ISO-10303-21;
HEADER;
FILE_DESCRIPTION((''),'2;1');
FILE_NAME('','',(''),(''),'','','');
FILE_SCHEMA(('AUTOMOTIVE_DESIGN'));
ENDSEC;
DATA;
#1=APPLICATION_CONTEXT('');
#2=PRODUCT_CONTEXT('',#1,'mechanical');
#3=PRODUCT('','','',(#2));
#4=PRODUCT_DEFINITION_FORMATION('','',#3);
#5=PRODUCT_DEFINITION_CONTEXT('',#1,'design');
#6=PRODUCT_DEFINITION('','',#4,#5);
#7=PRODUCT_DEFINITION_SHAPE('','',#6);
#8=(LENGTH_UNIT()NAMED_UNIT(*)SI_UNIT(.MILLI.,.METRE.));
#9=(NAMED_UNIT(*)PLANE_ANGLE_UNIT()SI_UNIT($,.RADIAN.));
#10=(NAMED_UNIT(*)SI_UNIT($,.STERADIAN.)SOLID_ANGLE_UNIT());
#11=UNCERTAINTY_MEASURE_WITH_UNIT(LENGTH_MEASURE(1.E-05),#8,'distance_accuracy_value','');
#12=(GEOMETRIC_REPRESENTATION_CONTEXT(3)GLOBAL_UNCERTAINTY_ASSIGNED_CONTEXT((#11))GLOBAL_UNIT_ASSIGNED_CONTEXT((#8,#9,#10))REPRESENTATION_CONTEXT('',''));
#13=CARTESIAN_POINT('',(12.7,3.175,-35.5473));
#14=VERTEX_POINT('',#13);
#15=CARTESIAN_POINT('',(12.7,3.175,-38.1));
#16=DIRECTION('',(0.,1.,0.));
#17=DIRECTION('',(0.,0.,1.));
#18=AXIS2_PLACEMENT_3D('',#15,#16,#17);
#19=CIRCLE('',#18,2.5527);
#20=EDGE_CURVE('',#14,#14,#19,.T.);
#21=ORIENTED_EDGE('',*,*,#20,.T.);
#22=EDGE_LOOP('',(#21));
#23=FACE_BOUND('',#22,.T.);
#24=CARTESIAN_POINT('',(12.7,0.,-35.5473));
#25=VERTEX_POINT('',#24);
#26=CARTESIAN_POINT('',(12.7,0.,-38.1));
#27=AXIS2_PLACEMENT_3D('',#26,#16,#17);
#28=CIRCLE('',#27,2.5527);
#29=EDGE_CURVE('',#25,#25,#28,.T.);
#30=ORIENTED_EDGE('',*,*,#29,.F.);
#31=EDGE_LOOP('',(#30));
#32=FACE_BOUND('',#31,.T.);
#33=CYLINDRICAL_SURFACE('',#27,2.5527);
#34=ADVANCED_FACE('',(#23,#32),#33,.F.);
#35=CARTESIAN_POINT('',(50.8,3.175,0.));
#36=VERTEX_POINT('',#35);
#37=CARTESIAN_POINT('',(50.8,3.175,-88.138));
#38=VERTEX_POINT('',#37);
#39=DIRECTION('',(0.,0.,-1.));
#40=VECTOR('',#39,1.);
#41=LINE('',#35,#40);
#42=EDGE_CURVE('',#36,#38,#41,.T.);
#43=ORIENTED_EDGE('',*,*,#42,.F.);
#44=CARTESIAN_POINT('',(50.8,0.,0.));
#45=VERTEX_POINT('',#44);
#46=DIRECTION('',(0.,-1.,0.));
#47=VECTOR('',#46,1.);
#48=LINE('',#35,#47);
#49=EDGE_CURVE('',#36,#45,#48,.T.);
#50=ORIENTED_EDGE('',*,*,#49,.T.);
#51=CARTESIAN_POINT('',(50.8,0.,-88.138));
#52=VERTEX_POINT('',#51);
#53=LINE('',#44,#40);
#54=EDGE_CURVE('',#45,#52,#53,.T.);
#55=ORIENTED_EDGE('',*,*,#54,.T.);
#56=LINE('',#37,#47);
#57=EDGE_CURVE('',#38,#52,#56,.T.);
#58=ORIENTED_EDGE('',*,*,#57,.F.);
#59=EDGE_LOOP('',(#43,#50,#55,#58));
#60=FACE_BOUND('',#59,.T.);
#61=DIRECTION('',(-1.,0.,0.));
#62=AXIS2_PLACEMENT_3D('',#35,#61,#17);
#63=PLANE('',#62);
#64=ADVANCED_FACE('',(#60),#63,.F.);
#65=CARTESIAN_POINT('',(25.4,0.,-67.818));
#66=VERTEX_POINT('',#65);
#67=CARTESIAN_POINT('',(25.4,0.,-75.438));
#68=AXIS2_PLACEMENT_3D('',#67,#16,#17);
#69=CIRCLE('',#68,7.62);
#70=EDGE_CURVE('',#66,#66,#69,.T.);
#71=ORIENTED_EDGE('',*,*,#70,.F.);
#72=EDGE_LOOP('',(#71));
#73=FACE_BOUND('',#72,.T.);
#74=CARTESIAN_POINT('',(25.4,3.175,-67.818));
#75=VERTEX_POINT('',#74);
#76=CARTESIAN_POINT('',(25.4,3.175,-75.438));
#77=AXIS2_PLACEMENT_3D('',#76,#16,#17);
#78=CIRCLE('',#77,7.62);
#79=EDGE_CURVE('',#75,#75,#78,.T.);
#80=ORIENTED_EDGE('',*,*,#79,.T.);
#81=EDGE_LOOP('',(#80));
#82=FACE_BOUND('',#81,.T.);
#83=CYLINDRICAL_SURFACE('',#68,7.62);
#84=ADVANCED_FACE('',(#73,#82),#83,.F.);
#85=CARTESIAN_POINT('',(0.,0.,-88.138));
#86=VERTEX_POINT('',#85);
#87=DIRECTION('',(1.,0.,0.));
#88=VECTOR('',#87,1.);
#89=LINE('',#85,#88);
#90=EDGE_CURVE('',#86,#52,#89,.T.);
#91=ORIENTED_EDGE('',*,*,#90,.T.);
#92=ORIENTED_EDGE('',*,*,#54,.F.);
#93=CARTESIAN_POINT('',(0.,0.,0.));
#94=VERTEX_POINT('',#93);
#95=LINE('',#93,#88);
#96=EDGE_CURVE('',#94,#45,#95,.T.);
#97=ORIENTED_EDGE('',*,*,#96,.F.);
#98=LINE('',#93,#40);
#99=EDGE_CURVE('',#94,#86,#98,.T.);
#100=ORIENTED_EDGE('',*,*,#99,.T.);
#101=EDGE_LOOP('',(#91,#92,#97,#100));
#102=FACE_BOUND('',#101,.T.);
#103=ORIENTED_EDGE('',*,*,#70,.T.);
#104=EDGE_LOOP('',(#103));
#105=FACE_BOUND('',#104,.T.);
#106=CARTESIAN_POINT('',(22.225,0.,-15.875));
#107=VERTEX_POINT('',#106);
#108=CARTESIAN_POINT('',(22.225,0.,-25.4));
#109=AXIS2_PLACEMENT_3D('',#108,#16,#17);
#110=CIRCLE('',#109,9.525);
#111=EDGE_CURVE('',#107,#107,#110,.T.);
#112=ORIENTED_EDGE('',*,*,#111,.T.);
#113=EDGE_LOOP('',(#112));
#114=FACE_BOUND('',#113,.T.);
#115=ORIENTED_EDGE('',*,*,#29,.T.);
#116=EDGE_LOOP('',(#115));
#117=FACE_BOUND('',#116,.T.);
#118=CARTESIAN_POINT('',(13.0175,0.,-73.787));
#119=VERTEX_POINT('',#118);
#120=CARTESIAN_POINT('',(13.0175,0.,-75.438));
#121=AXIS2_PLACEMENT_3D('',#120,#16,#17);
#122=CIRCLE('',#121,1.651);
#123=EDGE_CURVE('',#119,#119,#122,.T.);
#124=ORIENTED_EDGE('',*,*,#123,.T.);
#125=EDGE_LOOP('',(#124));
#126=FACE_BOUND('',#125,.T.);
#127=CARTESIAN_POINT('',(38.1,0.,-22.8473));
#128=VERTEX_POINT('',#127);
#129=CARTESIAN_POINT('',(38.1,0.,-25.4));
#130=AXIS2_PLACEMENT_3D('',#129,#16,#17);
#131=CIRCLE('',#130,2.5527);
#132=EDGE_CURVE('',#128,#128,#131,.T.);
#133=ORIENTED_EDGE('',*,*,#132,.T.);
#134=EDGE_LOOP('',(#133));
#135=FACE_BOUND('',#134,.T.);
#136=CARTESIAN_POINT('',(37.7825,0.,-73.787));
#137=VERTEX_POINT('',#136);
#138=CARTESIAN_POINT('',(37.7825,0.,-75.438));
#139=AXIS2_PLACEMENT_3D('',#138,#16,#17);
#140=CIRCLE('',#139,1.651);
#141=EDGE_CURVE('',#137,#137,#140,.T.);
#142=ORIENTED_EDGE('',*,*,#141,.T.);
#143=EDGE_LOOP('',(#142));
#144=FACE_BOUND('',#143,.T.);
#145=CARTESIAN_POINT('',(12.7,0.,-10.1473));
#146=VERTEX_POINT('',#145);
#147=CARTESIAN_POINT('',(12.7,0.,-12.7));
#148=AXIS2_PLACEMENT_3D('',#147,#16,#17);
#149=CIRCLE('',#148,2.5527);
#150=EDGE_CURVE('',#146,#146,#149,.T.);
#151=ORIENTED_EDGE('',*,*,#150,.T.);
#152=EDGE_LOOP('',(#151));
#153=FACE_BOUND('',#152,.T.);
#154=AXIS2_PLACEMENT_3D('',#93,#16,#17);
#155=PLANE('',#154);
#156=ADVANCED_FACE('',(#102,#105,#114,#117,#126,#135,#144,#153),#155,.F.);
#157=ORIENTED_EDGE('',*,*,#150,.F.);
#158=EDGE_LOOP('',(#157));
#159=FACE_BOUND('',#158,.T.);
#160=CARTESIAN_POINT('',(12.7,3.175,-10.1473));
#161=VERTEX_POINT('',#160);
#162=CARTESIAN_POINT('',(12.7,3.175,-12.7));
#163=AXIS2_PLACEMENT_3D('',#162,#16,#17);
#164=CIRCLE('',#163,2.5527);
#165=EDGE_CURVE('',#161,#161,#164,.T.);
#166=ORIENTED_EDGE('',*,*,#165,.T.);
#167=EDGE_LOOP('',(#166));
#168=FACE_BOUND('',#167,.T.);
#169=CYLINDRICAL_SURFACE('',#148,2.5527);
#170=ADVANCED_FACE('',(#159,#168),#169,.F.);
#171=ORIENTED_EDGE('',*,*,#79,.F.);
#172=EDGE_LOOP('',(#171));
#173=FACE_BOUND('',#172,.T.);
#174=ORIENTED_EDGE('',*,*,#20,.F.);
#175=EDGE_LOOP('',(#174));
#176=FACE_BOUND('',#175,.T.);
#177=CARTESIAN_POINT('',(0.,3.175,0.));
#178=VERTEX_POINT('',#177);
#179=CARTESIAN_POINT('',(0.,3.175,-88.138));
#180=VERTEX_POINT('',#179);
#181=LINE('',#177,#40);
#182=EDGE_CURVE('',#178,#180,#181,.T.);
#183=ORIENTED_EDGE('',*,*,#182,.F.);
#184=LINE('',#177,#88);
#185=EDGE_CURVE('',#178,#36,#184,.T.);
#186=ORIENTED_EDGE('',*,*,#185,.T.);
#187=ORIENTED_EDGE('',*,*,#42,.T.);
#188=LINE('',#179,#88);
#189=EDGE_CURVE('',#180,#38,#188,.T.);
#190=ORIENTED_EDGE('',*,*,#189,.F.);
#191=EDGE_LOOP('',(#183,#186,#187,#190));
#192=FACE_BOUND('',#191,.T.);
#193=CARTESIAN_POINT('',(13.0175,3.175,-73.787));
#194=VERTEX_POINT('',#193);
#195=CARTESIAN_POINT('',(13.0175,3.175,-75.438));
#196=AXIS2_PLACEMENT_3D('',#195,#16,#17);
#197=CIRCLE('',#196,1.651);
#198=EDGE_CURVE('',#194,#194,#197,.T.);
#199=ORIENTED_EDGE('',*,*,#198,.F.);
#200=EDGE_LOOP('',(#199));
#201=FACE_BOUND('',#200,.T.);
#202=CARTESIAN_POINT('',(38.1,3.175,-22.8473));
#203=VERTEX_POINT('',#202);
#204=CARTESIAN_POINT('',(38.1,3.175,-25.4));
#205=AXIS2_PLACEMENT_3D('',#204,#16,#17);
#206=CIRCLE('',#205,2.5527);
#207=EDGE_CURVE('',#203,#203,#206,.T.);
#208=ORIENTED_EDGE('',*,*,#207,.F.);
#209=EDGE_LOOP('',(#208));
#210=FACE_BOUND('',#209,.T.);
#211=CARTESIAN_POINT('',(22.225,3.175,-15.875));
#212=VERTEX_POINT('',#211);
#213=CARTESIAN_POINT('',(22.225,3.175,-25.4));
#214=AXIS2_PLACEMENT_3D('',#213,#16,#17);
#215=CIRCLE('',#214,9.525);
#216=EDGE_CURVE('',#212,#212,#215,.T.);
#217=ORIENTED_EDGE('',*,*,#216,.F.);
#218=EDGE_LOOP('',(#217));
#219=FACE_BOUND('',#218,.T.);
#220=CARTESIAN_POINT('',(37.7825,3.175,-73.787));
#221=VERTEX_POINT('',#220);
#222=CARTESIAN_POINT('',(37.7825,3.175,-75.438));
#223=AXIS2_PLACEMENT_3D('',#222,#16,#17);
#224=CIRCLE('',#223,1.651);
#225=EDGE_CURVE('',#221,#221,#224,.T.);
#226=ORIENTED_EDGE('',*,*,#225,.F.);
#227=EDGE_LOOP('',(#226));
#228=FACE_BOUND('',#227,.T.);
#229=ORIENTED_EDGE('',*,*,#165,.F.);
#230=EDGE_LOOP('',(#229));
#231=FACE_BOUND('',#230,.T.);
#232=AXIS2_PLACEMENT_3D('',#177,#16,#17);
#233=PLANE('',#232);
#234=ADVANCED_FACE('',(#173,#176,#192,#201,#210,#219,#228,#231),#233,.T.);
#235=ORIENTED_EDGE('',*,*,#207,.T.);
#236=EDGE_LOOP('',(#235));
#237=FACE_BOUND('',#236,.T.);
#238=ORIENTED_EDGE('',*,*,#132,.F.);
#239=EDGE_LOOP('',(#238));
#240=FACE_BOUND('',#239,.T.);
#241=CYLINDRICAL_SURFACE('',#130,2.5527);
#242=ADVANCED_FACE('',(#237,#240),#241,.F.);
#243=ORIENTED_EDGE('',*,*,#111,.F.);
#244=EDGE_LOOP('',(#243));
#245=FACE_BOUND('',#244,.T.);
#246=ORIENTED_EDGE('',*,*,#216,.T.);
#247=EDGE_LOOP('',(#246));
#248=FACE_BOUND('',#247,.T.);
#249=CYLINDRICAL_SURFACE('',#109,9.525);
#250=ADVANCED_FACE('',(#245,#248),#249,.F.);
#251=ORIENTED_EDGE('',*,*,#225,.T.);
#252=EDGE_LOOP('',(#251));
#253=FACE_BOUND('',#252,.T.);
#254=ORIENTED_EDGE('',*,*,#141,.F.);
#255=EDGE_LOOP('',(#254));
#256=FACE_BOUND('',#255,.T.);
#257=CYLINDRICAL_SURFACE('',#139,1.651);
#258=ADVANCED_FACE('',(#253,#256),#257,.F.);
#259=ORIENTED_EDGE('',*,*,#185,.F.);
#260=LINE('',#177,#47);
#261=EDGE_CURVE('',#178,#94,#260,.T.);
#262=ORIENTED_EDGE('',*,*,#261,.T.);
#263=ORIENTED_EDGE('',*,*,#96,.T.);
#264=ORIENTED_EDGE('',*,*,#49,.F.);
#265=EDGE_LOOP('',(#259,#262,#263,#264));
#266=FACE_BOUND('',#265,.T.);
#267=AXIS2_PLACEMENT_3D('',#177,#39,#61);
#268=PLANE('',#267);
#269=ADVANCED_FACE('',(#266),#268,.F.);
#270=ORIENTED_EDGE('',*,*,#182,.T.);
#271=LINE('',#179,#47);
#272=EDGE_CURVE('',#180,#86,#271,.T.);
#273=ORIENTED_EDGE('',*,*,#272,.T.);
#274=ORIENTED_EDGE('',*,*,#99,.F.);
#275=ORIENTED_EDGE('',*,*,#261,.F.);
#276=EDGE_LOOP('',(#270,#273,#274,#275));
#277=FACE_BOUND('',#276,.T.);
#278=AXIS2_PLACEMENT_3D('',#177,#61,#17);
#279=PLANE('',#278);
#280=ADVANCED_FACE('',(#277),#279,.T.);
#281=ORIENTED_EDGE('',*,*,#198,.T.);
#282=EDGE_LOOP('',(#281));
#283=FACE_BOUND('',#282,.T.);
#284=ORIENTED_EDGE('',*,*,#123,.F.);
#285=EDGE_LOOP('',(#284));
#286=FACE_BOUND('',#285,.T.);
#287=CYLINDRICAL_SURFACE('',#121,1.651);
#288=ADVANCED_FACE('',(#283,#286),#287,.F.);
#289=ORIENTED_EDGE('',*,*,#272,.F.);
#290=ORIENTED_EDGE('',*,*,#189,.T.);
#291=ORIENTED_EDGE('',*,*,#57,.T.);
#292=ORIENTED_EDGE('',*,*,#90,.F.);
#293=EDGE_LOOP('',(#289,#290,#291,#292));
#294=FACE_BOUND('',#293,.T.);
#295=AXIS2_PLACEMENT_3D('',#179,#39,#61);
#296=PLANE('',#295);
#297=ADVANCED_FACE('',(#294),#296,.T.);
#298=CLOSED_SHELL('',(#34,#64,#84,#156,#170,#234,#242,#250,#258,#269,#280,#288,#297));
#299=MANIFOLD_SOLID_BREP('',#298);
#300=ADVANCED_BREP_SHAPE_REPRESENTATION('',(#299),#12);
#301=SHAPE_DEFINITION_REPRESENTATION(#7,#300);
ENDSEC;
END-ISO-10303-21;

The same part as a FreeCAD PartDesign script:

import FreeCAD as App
import Part
import Sketcher
Q = App.Units.Quantity

doc = App.newDocument("Part")
body = doc.addObject("PartDesign::Body", "Body")

sketch1 = body.newObject("Sketcher::SketchObject", "Sketch")
sketch1.AttachmentSupport = (doc.getObject("XZ_Plane"), [""])
sketch1.MapMode = "FlatFace"
sketch1.addGeometry([
    Part.LineSegment(App.Vector(0, -88, 0), App.Vector(0, 0, 0)),
    Part.LineSegment(App.Vector(0, 0, 0), App.Vector(51, 0, 0)),
    Part.LineSegment(App.Vector(51, 0, 0), App.Vector(51, -88, 0)),
    Part.LineSegment(App.Vector(51, -88, 0), App.Vector(0, -88, 0)),
], False)
sketch1.addConstraint([
    Sketcher.Constraint("Coincident", 0, 2, 1, 1),
    Sketcher.Constraint("Coincident", 1, 2, 2, 1),
    Sketcher.Constraint("Coincident", 2, 2, 3, 1),
    Sketcher.Constraint("Coincident", 3, 2, 0, 1),
    Sketcher.Constraint("Vertical", 0),
    Sketcher.Constraint("Horizontal", 1),
    Sketcher.Constraint("Vertical", 2),
    Sketcher.Constraint("Horizontal", 3),
    Sketcher.Constraint("Coincident", 0, 2, -1, 1),
    Sketcher.Constraint("DistanceX", 1, 1, 1, 2, Q("2 in")),
    Sketcher.Constraint("DistanceY", 0, 1, 0, 2, Q("3.47 in")),
])
pad1 = body.newObject("PartDesign::Pad", "Pad")
pad1.Profile = sketch1
pad1.Length = Q("0.125 in")
pad1.Reversed = True

sketch2 = body.newObject("Sketcher::SketchObject", "Sketch001")
sketch2.AttachmentSupport = (doc.getObject("XZ_Plane"), [""])
sketch2.MapMode = "FlatFace"
sketch2.AttachmentOffset = App.Placement(App.Vector(0, 0, -0.125 * 25.4), App.Rotation())
sketch2.addGeometry([
    Part.Circle(App.Vector(12.7, -12.7, 0), App.Vector(0, 0, 1), 2.6),
    Part.Circle(App.Vector(12.7, -38.1, 0), App.Vector(0, 0, 1), 2.6),
    Part.Circle(App.Vector(38.1, -25.4, 0), App.Vector(0, 0, 1), 2.6),
    Part.Circle(App.Vector(22.2, -25.4, 0), App.Vector(0, 0, 1), 9.5),
], False)
sketch2.addConstraint([
    Sketcher.Constraint("Equal", 0, 1),
    Sketcher.Constraint("Equal", 1, 2),
    Sketcher.Constraint("Horizontal", 2, 3, 3, 3),
    Sketcher.Constraint("Vertical", 0, 3, 1, 3),
    Sketcher.Constraint("Diameter", 3, Q("0.75 in")),
    Sketcher.Constraint("Diameter", 0, Q("0.201 in")),
    Sketcher.Constraint("DistanceY", 2, 3, -1, 1, Q("1 in")),
    Sketcher.Constraint("DistanceY", 1, 3, 0, 3, Q("1 in")),
    Sketcher.Constraint("DistanceX", 0, 3, 2, 3, Q("1 in")),
    Sketcher.Constraint("DistanceX", -1, 1, 0, 3, Q("0.5 in")),
    Sketcher.Constraint("DistanceY", 0, 3, -1, 1, Q("0.5 in")),
    Sketcher.Constraint("DistanceX", -1, 1, 3, 3, Q("0.875 in")),
])
pocket1 = body.newObject("PartDesign::Pocket", "Pocket")
pocket1.Profile = sketch2
pocket1.Length = Q("0.125 in")
pocket1.Reversed = True

sketch3 = body.newObject("Sketcher::SketchObject", "Sketch002")
sketch3.AttachmentSupport = (doc.getObject("XZ_Plane"), [""])
sketch3.MapMode = "FlatFace"
sketch3.AttachmentOffset = App.Placement(App.Vector(0, 0, -0.125 * 25.4), App.Rotation())
sketch3.addGeometry([
    Part.Circle(App.Vector(13, -75.4, 0), App.Vector(0, 0, 1), 1.7),
    Part.Circle(App.Vector(37.8, -75.4, 0), App.Vector(0, 0, 1), 1.7),
    Part.Circle(App.Vector(25.4, -75.4, 0), App.Vector(0, 0, 1), 7.6),
], False)
sketch3.addConstraint([
    Sketcher.Constraint("Equal", 0, 1),
    Sketcher.Constraint("Horizontal", 0, 3, 1, 3),
    Sketcher.Constraint("Horizontal", 1, 3, 2, 3),
    Sketcher.Constraint("Diameter", 2, Q("0.6 in")),
    Sketcher.Constraint("Diameter", 0, Q("0.13 in")),
    Sketcher.Constraint("DistanceX", -1, 1, 2, 3, Q("1 in")),
    Sketcher.Constraint("DistanceY", 0, 3, -1, 1, Q("2.97 in")),
    Sketcher.Constraint("DistanceX", 0, 3, 1, 3, Q("0.975 in")),
    Sketcher.Constraint("DistanceX", -1, 1, 0, 3, Q("0.5125 in")),
])
pocket2 = body.newObject("PartDesign::Pocket", "Pocket001")
pocket2.Profile = sketch3
pocket2.Length = Q("0.125 in")
pocket2.Reversed = True

doc.recompute()
